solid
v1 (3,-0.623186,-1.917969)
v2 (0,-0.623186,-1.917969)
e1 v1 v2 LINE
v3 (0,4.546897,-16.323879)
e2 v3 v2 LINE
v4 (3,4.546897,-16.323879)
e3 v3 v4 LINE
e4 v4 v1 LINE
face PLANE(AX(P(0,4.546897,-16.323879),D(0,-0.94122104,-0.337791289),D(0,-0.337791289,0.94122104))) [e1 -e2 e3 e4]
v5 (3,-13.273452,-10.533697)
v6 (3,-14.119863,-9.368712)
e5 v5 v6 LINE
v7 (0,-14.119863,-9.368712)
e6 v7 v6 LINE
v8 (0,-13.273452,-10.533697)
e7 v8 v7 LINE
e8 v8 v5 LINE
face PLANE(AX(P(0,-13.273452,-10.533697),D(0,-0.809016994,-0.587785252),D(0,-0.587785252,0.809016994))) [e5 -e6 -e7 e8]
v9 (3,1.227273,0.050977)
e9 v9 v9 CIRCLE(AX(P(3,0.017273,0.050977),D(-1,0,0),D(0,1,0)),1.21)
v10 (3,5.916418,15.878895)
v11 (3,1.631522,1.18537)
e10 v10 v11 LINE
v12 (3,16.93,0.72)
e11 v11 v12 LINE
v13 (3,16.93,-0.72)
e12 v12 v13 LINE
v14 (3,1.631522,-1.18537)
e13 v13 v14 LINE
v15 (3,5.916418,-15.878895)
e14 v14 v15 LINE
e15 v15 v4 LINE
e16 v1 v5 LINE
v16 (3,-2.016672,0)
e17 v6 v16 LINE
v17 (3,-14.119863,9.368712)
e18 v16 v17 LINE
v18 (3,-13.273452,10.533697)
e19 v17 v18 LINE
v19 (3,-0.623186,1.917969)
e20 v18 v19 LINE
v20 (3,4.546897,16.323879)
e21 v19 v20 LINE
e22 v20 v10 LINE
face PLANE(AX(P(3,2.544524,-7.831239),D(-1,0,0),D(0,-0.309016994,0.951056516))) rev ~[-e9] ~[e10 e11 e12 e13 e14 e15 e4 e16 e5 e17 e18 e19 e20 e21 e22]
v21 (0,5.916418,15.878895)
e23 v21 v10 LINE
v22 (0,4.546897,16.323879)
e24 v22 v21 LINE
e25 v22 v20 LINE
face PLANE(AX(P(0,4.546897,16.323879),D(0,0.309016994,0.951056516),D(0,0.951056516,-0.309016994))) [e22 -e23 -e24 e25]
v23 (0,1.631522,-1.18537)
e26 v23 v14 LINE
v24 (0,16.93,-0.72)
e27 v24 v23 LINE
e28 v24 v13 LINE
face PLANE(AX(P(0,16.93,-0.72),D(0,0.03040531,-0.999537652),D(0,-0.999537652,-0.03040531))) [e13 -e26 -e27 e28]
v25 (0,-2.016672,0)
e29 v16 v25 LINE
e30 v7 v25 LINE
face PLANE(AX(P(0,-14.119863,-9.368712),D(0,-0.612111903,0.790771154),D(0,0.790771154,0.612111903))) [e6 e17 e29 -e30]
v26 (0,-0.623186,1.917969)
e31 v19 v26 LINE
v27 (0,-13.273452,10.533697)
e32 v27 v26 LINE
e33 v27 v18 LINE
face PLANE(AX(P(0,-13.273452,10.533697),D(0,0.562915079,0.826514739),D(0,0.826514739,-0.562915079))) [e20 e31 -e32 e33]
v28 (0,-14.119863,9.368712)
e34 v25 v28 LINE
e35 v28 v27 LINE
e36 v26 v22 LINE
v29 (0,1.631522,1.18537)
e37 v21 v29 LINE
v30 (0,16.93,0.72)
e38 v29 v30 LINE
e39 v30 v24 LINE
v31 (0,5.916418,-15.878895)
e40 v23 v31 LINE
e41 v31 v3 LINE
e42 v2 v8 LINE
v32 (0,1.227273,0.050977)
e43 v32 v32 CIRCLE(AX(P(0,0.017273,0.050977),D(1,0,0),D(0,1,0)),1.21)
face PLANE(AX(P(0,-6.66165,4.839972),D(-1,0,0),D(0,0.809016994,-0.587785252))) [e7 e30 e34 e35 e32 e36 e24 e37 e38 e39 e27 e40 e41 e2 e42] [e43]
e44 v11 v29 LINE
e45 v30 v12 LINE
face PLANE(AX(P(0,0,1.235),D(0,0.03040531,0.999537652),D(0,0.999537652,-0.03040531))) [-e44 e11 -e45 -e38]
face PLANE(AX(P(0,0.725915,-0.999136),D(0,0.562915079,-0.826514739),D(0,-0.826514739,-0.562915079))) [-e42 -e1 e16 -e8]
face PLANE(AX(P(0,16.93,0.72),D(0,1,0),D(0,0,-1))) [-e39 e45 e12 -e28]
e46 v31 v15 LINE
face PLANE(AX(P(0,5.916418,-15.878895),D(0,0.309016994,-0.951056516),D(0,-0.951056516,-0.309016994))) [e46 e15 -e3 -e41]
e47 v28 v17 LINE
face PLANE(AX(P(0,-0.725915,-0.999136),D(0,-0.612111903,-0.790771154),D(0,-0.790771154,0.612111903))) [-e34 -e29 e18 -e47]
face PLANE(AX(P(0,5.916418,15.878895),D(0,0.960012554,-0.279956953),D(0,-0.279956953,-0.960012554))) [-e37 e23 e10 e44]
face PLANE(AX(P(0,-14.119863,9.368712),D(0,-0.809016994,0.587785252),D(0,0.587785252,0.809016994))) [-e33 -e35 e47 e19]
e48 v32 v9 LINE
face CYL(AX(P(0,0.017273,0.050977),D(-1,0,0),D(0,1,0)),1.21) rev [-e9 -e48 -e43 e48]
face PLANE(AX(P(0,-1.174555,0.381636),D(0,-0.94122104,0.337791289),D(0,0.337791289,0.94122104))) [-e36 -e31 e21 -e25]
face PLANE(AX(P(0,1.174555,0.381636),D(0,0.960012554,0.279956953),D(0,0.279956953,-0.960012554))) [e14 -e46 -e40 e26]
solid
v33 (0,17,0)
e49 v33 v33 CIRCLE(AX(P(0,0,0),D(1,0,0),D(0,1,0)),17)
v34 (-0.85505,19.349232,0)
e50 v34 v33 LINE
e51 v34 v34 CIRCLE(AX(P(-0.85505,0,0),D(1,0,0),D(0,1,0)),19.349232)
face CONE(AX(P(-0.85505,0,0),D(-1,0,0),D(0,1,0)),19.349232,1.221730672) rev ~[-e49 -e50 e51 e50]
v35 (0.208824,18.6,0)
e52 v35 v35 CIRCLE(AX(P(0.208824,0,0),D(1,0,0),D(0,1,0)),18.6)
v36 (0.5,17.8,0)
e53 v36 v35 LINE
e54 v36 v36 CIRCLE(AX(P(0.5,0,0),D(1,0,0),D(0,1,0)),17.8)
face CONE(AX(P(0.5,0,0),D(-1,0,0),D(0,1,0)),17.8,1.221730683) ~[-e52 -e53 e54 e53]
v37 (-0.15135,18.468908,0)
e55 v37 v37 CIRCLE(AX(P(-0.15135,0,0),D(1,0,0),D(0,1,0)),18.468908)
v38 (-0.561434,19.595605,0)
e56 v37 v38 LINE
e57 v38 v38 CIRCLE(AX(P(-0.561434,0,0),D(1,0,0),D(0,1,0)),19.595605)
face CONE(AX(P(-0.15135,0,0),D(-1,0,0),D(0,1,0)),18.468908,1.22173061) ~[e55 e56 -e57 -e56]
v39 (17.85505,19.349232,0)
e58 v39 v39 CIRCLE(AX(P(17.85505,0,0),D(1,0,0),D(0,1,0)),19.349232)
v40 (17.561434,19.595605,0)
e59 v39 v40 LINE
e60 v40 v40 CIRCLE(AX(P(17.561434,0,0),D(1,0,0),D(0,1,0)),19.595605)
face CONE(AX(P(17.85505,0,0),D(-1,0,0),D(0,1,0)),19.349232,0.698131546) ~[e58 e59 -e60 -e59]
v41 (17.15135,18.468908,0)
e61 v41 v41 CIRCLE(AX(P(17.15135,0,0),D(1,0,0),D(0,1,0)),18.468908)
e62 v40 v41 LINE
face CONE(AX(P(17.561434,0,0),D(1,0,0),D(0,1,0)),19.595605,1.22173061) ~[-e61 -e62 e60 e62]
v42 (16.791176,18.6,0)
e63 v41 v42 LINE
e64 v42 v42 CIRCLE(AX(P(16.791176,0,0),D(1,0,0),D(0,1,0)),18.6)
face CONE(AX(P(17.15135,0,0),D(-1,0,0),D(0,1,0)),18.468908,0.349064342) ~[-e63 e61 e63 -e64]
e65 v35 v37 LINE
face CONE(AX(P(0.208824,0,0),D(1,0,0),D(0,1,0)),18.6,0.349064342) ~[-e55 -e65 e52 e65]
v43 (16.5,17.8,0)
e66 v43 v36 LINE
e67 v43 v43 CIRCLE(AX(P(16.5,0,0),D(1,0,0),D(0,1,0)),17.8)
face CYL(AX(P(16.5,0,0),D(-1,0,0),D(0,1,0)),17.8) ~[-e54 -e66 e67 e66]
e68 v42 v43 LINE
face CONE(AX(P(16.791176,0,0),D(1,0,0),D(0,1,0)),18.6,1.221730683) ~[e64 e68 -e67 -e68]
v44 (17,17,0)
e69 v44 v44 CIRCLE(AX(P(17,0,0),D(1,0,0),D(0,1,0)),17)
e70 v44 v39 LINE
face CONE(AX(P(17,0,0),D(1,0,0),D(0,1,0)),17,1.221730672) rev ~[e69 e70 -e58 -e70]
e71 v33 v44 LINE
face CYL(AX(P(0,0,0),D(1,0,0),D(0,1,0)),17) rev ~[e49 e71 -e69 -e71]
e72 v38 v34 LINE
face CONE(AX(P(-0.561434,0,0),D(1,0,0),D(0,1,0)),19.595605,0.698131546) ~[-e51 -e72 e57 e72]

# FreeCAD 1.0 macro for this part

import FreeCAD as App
import Part
import Sketcher
Q = App.Units.Quantity


def add_polygon(sketch, points):
    """Adds a closed chain of lines whose ends are joined by coincident constraints."""
    first, n = sketch.GeometryCount, len(points)
    for a, b in zip(points, points[1:] + points[:1]):
        sketch.addGeometry(Part.LineSegment(App.Vector(*a, 0), App.Vector(*b, 0)), False)
    for i in range(n):
        sketch.addConstraint(Sketcher.Constraint("Coincident", first + i, 2, first + (i + 1) % n, 1))

doc = App.newDocument("Part")
body = doc.addObject("PartDesign::Body", "Body")

# Sketch on XY plane
sketch1 = body.newObject("Sketcher::SketchObject", "Sketch")
sketch1.AttachmentSupport = (doc.getObject("XY_Plane"), [""])
sketch1.MapMode = "FlatFace"
add_polygon(sketch1, [(-0.85505, 19.349232), (0, 17), (17, 17), (17.85505, 19.349232), (17.561434, 19.595605), (17.15135, 18.468908), (16.791176, 18.6), (16.5, 17.8), (0.5, 17.8), (0.208824, 18.6), (-0.15135, 18.468908), (-0.561434, 19.595605)])  # lines 0-11
sketch1.addConstraint(Sketcher.Constraint("Horizontal", 1))
sketch1.addConstraint(Sketcher.Constraint("Horizontal", 7))
sketch1.addConstraint(Sketcher.Constraint("PointOnObject", 0, 2, -2))
sketch1.addConstraint(Sketcher.Constraint("Parallel", 2, 4))
sketch1.addConstraint(Sketcher.Constraint("Perpendicular", 4, 5))
sketch1.addConstraint(Sketcher.Constraint("Perpendicular", 5, 6))
sketch1.addConstraint(Sketcher.Constraint("Parallel", 0, 8))
sketch1.addConstraint(Sketcher.Constraint("Perpendicular", 8, 9))
sketch1.addConstraint(Sketcher.Constraint("Perpendicular", 9, 10))
sketch1.addConstraint(Sketcher.Constraint("Horizontal", 5, 2, 8, 2))
sketch1.addConstraint(Sketcher.Constraint("Horizontal", 4, 2, 9, 2))
sketch1.addConstraint(Sketcher.Constraint("Horizontal", 3, 2, 10, 2))
sketch1.addConstraint(Sketcher.Constraint("Horizontal", 2, 2, 11, 2))
sketch1.addConstraint(Sketcher.Constraint("Equal", 0, 2))
sketch1.addConstraint(Sketcher.Constraint("Equal", 3, 5))
sketch1.addConstraint(Sketcher.Constraint("Equal", 9, 11))
sketch1.addConstraint(Sketcher.Constraint("DistanceX", 1, 1, 1, 2, 17.0))
sketch1.addConstraint(Sketcher.Constraint("DistanceX", 7, 2, 7, 1, 16.0))
sketch1.addConstraint(Sketcher.Constraint("Angle", 0, Q("-70.000011 deg")))
sketch1.addConstraint(Sketcher.Constraint("Angle", 3, Q("140.000009 deg")))
sketch1.addConstraint(Sketcher.Constraint("DistanceY", -1, 1, 0, 2, 17.0))
sketch1.addConstraint(Sketcher.Constraint("Distance", 0, 2.5))
sketch1.addConstraint(Sketcher.Constraint("DistanceY", -1, 1, 5, 2, 18.6))
sketch1.addConstraint(Sketcher.Constraint("DistanceY", -1, 1, 6, 2, 17.8))
revolution = body.newObject("PartDesign::Revolution", "Revolution")
revolution.Profile = sketch1
revolution.ReferenceAxis = (sketch1, ["H_Axis"])
revolution.Angle = 360
body2 = doc.addObject("PartDesign::Body", "Body001")

# Sketch on YZ plane
sketch2 = body2.newObject("Sketcher::SketchObject", "Sketch001")
sketch2.AttachmentSupport = (doc.getObject("YZ_Plane001"), [""])
sketch2.MapMode = "FlatFace"
add_polygon(sketch2, [(16.93, 0.72), (0, 1.235), (0, -1.235), (16.93, -0.72)])  # lines 0-3
sketch2.addConstraint(Sketcher.Constraint("Vertical", 1))
sketch2.addConstraint(Sketcher.Constraint("Vertical", 3))
sketch2.addConstraint(Sketcher.Constraint("Symmetric", 0, 2, 1, 2, -1, 1))
sketch2.addConstraint(Sketcher.Constraint("Equal", 0, 2))
sketch2.addConstraint(Sketcher.Constraint("DistanceY", 1, 2, 1, 1, 2.47))
sketch2.addConstraint(Sketcher.Constraint("DistanceY", 3, 1, 3, 2, 1.44))
sketch2.addConstraint(Sketcher.Constraint("DistanceX", -1, 1, 2, 2, 16.93))
pad1 = body2.newObject("PartDesign::Pad", "Pad")
pad1.Profile = sketch2
pad1.Length = 3
doc.recompute()

polarpattern = body2.newObject("PartDesign::PolarPattern", "PolarPattern")
polarpattern.Originals = [pad1]
polarpattern.Axis = (doc.getObject("X_Axis001"), [""])
polarpattern.Angle = 360
polarpattern.Occurrences = 5
body2.Tip = polarpattern

# Sketch on YZ plane
sketch3 = body2.newObject("Sketcher::SketchObject", "Sketch002")
sketch3.AttachmentSupport = (doc.getObject("YZ_Plane001"), [""])
sketch3.MapMode = "FlatFace"
sketch3.addGeometry(Part.Circle(App.Vector(0.017273, 0.050977, 0), App.Vector(0, 0, 1), 1.21), False)
sketch3.addConstraint(Sketcher.Constraint("Diameter", 0, 2.42))
sketch3.addConstraint(Sketcher.Constraint("DistanceX", -1, 1, 0, 3, 0.017273))
sketch3.addConstraint(Sketcher.Constraint("DistanceY", -1, 1, 0, 3, 0.050977))
pocket1 = body2.newObject("PartDesign::Pocket", "Pocket")
pocket1.Profile = sketch3
pocket1.Length = 5
pocket1.Reversed = True

doc.recompute()
